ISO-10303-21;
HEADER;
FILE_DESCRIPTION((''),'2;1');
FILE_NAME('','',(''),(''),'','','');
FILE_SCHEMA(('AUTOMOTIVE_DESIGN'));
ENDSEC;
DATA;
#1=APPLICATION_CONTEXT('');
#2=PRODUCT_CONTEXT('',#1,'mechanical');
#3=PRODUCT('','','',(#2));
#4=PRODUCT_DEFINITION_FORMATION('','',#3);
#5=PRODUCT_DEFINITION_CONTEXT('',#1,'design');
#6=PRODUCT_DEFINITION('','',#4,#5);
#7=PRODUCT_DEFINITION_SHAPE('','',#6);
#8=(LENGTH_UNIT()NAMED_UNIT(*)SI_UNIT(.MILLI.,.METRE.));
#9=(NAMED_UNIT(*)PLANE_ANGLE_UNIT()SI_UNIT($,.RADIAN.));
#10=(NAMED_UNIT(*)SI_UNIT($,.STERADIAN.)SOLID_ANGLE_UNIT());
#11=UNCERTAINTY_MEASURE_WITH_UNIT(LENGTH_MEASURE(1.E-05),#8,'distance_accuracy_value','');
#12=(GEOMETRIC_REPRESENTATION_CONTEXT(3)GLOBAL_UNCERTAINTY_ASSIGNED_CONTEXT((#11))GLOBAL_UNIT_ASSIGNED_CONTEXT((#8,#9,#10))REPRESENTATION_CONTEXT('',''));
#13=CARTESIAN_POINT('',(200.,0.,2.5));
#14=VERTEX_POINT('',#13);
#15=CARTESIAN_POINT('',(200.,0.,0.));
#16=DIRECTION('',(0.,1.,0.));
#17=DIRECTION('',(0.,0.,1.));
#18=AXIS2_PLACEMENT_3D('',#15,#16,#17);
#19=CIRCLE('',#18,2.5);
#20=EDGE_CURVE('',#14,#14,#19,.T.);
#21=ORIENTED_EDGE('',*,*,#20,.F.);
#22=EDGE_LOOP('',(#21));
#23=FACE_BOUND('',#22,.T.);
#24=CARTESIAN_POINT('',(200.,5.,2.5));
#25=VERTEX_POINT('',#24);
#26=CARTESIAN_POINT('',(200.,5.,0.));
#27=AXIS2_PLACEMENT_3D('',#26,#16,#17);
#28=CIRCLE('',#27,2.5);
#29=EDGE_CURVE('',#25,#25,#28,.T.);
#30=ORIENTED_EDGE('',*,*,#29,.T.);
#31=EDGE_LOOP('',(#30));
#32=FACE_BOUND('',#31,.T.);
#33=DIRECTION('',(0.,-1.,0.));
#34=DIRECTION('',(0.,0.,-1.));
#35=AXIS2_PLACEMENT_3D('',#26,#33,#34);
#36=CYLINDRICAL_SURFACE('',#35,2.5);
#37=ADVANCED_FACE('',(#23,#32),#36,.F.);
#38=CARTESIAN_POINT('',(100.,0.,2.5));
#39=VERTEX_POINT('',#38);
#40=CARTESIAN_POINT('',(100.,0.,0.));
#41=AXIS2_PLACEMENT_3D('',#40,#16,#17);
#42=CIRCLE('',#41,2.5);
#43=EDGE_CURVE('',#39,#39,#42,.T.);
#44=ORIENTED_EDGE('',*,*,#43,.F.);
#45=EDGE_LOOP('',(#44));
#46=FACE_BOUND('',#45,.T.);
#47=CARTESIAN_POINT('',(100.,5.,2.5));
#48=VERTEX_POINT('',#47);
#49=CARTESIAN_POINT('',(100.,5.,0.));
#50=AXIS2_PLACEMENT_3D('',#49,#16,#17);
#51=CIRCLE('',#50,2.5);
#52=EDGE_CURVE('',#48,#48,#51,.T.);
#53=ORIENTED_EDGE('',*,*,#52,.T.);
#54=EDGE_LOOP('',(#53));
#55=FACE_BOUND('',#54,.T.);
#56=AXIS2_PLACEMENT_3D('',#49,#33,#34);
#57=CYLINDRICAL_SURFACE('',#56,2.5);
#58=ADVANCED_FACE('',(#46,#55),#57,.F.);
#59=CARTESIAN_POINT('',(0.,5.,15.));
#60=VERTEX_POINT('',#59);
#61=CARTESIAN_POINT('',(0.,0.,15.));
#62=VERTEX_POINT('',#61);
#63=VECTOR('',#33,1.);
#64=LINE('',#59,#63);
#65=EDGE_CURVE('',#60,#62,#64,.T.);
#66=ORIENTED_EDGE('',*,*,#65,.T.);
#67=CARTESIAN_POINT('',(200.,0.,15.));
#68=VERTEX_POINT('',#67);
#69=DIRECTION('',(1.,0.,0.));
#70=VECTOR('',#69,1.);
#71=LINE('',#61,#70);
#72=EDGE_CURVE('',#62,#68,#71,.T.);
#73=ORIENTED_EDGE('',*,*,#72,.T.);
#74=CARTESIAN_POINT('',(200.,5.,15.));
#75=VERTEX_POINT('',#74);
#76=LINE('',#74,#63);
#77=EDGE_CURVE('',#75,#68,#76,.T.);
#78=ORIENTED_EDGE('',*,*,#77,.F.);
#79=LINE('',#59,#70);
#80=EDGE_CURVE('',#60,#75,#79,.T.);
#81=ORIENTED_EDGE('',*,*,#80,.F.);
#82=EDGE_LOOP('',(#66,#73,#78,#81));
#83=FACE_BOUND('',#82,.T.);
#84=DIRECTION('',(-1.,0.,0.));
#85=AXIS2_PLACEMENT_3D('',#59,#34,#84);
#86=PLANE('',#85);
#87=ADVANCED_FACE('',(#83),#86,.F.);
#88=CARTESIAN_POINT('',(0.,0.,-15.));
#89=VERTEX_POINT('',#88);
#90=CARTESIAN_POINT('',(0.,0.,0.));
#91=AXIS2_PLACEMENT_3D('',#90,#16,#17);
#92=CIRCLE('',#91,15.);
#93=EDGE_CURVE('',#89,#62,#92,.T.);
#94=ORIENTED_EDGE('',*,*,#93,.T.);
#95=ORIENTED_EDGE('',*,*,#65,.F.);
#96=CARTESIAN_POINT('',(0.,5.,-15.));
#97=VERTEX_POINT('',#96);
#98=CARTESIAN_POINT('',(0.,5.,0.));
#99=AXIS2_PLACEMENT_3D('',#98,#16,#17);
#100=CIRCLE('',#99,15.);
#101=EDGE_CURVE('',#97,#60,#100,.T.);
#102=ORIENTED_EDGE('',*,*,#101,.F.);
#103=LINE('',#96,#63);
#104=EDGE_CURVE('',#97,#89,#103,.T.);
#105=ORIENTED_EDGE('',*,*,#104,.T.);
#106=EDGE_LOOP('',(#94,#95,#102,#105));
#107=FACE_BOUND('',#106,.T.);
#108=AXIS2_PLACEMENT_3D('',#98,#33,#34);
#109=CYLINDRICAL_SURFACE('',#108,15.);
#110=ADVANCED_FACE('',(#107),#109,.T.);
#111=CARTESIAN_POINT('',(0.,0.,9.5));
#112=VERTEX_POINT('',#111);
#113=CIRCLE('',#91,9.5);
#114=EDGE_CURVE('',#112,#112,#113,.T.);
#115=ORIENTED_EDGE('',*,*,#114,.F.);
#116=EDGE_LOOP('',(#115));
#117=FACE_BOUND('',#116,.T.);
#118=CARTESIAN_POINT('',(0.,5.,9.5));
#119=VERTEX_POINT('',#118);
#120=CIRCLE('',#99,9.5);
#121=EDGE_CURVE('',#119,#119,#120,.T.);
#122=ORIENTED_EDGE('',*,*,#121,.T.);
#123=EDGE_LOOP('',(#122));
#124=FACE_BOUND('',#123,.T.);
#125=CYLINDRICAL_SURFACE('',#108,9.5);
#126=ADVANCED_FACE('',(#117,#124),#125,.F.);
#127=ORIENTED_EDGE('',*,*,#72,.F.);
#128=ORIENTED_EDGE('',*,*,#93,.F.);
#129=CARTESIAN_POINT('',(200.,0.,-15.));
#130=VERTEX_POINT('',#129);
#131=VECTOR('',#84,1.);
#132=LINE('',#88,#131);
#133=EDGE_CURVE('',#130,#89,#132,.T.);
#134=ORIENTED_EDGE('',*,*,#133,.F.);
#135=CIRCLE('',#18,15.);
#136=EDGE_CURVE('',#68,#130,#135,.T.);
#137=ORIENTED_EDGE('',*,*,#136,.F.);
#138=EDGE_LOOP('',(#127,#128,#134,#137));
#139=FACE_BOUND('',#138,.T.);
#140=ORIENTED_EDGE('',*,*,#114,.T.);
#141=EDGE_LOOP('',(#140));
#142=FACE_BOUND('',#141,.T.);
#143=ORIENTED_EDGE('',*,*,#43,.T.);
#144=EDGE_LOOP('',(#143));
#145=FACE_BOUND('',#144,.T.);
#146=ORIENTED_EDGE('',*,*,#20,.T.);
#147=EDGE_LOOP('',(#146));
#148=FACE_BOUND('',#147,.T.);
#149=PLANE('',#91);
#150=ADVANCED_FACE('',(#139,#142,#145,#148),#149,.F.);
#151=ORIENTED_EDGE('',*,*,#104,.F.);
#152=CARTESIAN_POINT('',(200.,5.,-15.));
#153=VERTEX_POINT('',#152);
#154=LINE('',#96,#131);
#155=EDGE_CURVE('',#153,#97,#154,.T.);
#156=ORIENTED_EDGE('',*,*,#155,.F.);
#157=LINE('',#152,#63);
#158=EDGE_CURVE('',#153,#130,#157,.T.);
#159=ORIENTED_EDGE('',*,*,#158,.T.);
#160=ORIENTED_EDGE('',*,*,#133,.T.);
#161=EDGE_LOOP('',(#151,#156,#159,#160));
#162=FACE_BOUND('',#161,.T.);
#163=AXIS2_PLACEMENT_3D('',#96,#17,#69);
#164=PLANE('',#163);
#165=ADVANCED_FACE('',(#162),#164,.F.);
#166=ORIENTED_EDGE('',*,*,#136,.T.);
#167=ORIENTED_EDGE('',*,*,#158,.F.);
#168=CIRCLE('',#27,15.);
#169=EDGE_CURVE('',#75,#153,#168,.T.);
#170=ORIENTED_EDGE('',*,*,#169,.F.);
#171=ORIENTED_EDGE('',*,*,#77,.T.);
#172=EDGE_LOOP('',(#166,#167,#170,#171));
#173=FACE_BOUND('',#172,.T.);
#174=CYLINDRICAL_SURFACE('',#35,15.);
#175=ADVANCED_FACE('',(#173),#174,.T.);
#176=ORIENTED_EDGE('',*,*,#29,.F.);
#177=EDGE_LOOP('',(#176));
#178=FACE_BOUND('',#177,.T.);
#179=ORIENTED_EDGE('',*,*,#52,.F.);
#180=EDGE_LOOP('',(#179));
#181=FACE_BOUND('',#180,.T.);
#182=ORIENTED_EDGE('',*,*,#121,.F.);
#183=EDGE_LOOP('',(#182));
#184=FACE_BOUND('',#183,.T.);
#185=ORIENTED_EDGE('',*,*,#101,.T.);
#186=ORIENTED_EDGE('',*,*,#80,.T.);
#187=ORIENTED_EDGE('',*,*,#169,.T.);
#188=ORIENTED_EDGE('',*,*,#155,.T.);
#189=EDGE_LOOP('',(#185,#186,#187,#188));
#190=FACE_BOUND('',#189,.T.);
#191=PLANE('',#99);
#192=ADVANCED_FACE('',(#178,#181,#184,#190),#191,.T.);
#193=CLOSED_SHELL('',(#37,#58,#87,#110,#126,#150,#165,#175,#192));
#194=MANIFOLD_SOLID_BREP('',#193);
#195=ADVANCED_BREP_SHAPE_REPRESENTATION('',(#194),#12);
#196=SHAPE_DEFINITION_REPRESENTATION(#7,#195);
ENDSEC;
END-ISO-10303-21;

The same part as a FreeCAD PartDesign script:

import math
import FreeCAD as App
import Part
import Sketcher

doc = App.newDocument("Part")
body = doc.addObject("PartDesign::Body", "Body")

sketch1 = body.newObject("Sketcher::SketchObject", "Sketch")
sketch1.AttachmentSupport = (doc.getObject("XZ_Plane"), [""])
sketch1.MapMode = "FlatFace"
sketch1.addGeometry([
    Part.LineSegment(App.Vector(200, -15, 0), App.Vector(0, -15, 0)),
    Part.ArcOfCircle(Part.Circle(App.Vector(0, 0, 0), App.Vector(0, 0, 1), 15), math.radians(90), math.radians(270)),
    Part.LineSegment(App.Vector(0, 15, 0), App.Vector(200, 15, 0)),
    Part.ArcOfCircle(Part.Circle(App.Vector(200, 0, 0), App.Vector(0, 0, 1), 15), math.radians(-90), math.radians(90)),
    Part.Circle(App.Vector(200, 0, 0), App.Vector(0, 0, 1), 2.5),
    Part.Circle(App.Vector(100, 0, 0), App.Vector(0, 0, 1), 2.5),
    Part.Circle(App.Vector(0, 0, 0), App.Vector(0, 0, 1), 9.5),
], False)
sketch1.addConstraint([
    Sketcher.Constraint("Tangent", 0, 2, 1, 2),
    Sketcher.Constraint("Tangent", 1, 1, 2, 1),
    Sketcher.Constraint("Tangent", 2, 2, 3, 2),
    Sketcher.Constraint("Tangent", 3, 1, 0, 1),
    Sketcher.Constraint("Horizontal", 0),
    Sketcher.Constraint("Horizontal", 2),
    Sketcher.Constraint("Coincident", 1, 3, -1, 1),
    Sketcher.Constraint("Coincident", 6, 3, -1, 1),
    Sketcher.Constraint("Coincident", 4, 3, 3, 3),
    Sketcher.Constraint("Equal", 4, 5),
    Sketcher.Constraint("PointOnObject", 5, 3, -1),
    Sketcher.Constraint("Diameter", 4, 5.0),
    Sketcher.Constraint("Diameter", 6, 19.0),
    Sketcher.Constraint("Radius", 1, 15.0),
    Sketcher.Constraint("DistanceX", 0, 2, 0, 1, 200.0),
    Sketcher.Constraint("DistanceX", -1, 1, 5, 3, 100.0),
])
pad1 = body.newObject("PartDesign::Pad", "Pad")
pad1.Profile = sketch1
pad1.Length = 5
pad1.Reversed = True

doc.recompute()
